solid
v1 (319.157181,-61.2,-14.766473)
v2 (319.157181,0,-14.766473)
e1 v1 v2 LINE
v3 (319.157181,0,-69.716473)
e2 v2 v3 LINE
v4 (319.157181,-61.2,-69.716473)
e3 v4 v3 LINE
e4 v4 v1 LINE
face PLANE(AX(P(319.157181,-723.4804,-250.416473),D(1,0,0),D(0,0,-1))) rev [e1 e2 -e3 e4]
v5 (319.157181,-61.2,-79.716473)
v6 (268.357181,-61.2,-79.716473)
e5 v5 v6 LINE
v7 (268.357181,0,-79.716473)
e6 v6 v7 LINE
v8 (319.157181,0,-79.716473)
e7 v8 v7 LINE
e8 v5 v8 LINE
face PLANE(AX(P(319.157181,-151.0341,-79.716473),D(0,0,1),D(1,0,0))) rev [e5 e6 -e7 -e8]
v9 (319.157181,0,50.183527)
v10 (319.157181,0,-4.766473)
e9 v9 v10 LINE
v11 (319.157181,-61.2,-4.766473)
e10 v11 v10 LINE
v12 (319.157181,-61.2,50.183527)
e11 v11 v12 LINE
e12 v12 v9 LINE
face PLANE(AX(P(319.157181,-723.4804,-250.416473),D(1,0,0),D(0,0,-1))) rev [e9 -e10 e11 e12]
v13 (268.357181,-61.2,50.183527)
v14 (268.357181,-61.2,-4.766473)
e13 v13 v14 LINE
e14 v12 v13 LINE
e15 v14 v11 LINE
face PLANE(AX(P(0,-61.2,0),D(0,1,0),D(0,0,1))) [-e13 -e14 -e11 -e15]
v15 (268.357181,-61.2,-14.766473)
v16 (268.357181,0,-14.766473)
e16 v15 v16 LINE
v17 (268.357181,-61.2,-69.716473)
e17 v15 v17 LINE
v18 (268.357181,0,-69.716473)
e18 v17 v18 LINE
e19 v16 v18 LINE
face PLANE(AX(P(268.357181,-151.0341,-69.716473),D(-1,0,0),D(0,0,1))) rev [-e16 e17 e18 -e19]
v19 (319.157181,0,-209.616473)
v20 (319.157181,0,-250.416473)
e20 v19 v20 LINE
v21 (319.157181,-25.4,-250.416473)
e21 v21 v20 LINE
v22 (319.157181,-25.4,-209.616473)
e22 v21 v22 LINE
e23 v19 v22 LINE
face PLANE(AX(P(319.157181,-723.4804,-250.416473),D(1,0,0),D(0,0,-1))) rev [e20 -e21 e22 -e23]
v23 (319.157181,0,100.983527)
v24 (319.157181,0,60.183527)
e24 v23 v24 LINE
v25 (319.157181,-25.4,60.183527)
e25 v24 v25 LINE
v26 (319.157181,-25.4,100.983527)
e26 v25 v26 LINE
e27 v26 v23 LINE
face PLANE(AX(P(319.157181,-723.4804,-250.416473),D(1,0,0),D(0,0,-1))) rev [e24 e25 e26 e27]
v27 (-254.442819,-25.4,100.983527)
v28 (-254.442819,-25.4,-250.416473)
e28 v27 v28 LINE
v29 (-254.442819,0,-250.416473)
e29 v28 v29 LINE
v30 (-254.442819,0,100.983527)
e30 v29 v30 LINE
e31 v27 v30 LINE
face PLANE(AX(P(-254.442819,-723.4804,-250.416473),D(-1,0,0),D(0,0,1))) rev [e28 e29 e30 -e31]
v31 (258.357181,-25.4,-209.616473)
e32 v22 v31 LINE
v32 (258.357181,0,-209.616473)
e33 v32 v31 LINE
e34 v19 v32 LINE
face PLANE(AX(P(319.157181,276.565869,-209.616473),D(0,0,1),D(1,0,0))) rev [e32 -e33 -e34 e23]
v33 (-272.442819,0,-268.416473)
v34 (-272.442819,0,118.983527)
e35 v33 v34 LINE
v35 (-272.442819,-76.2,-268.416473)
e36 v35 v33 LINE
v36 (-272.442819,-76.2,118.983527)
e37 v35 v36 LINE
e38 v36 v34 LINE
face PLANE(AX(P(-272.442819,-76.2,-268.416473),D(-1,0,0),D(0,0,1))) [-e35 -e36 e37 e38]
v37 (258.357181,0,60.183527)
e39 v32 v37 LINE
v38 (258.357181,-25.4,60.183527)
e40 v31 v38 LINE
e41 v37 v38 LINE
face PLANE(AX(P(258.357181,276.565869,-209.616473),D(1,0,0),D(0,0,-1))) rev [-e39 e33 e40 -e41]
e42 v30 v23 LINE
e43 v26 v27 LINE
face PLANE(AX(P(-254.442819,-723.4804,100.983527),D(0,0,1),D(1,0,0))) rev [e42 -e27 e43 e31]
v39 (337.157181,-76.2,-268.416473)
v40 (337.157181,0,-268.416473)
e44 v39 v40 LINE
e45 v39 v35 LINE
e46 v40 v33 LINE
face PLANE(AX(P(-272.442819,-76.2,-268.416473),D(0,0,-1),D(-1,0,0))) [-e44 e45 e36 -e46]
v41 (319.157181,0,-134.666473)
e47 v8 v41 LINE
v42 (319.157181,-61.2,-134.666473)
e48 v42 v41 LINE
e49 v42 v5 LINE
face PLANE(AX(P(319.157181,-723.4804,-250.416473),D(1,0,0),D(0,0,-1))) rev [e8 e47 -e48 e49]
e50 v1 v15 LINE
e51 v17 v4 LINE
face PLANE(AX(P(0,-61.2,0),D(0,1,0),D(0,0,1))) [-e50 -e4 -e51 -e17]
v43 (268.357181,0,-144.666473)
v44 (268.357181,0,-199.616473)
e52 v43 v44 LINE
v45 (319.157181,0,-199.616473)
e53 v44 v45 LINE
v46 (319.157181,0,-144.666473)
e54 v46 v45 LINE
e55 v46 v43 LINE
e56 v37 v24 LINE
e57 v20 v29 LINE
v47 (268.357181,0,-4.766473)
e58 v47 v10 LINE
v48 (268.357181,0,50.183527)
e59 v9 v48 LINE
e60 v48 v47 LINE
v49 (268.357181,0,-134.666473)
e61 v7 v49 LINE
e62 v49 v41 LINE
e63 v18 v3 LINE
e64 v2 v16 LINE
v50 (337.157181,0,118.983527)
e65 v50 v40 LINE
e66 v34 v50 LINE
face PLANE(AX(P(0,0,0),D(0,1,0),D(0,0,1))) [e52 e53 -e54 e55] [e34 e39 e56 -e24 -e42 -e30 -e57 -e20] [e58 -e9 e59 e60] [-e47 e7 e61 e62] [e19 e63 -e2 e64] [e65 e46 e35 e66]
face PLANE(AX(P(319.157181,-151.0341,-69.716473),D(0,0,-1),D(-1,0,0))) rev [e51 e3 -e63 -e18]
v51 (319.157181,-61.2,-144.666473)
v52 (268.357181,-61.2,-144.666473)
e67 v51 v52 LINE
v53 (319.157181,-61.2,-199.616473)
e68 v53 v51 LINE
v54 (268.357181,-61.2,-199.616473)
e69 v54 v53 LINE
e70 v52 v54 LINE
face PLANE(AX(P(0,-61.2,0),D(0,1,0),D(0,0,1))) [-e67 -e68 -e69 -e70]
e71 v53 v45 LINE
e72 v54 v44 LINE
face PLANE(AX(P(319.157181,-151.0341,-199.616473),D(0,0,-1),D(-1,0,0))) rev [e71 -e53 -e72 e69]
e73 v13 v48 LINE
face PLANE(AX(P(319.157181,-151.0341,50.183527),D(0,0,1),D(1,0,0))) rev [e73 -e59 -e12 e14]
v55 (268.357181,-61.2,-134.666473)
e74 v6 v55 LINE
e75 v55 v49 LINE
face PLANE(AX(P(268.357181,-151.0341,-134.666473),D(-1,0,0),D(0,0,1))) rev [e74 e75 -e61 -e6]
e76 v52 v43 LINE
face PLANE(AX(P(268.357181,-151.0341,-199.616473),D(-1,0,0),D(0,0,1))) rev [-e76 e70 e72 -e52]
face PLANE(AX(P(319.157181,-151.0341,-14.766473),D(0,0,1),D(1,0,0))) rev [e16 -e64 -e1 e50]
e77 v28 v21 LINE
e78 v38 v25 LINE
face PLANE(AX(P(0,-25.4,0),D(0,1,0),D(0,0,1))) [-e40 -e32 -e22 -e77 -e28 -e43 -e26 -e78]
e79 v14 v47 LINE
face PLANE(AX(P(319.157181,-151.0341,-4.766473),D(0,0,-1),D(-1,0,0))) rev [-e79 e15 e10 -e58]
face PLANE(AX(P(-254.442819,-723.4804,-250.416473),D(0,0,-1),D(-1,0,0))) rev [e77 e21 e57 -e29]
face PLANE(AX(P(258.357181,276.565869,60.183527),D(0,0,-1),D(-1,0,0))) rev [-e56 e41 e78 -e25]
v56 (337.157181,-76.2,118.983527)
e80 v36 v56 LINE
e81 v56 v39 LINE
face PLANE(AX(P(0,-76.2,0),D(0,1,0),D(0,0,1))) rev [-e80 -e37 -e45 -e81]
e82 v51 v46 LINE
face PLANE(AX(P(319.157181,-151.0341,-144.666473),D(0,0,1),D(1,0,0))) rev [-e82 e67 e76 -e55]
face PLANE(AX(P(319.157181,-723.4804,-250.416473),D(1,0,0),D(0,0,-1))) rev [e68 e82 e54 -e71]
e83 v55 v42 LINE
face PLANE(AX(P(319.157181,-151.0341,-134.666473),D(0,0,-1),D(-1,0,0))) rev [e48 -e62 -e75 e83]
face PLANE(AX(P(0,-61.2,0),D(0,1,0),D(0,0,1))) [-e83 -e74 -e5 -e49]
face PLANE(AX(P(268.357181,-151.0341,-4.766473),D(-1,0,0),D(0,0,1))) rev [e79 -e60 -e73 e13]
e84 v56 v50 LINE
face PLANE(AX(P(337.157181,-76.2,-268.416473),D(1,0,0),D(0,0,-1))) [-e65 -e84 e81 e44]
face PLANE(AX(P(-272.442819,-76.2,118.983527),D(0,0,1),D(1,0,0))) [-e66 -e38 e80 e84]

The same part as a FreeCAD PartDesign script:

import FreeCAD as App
import Part
import Sketcher
from FreeCAD import Vector


def add_polygon(sketch, points):
    """Adds a closed chain of lines whose ends are joined by coincident constraints."""
    first, n = sketch.GeometryCount, len(points)
    for a, b in zip(points, points[1:] + points[:1]):
        sketch.addGeometry(Part.LineSegment(App.Vector(*a, 0), App.Vector(*b, 0)), False)
    for i in range(n):
        sketch.addConstraint(Sketcher.Constraint("Coincident", first + i, 2, first + (i + 1) % n, 1))

doc = App.newDocument("Part")
body = doc.addObject("PartDesign::Body", "Body")

sketch1 = doc.addObject("Sketcher::SketchObject", "Sketch")
body.addObject(sketch1)
sketch1.AttachmentSupport = (doc.XZ_Plane, [""])
sketch1.MapMode = "FlatFace"
add_polygon(sketch1, [(-272, -268), (-272, 119), (337, 119), (337, -268)])
sketch1.addConstraint([
    Sketcher.Constraint("Vertical", 0),
    Sketcher.Constraint("Horizontal", 1),
    Sketcher.Constraint("Vertical", 2),
    Sketcher.Constraint("Horizontal", 3),
    Sketcher.Constraint("DistanceX", 1, 1, 1, 2, 609.6),
    Sketcher.Constraint("DistanceY", 0, 1, 0, 2, 387.4),
    Sketcher.Constraint("DistanceX", 0, 2, -1, 1, 272.442819),
    Sketcher.Constraint("DistanceY", -1, 1, 0, 2, 118.983527),
])
pad1 = doc.addObject("PartDesign::Pad", "Pad")
body.addObject(pad1)
pad1.Profile = sketch1
pad1.Length = 76.2

sketch2 = doc.addObject("Sketcher::SketchObject", "Sketch001")
body.addObject(sketch2)
sketch2.AttachmentSupport = (doc.XZ_Plane, [""])
sketch2.MapMode = "FlatFace"
add_polygon(sketch2, [(-254, -250), (-254, 101), (319, 101), (319, -250)])
sketch2.addConstraint([
    Sketcher.Constraint("Vertical", 0),
    Sketcher.Constraint("Horizontal", 1),
    Sketcher.Constraint("Vertical", 2),
    Sketcher.Constraint("Horizontal", 3),
    Sketcher.Constraint("DistanceX", 1, 1, 1, 2, 573.6),
    Sketcher.Constraint("DistanceY", 0, 1, 0, 2, 351.4),
    Sketcher.Constraint("DistanceX", 0, 2, -1, 1, 254.442819),
    Sketcher.Constraint("DistanceY", -1, 1, 0, 2, 100.983527),
])
pocket1 = doc.addObject("PartDesign::Pocket", "Pocket")
body.addObject(pocket1)
pocket1.Profile = sketch2
pocket1.Length = 25.4
pocket1.Reversed = True

sketch3 = doc.addObject("Sketcher::SketchObject", "Sketch002")
body.addObject(sketch3)
sketch3.AttachmentSupport = (doc.XZ_Plane, [""])
sketch3.MapMode = "FlatFace"
sketch3.AttachmentOffset = App.Placement(Vector(0, 0, 25.4), App.Rotation())
add_polygon(sketch3, [(268, -200), (268, -145), (319, -145), (319, -200)])
add_polygon(sketch3, [(268, -135), (268, -80), (319, -80), (319, -135)])
add_polygon(sketch3, [(268, -70), (268, -15), (319, -15), (319, -70)])
add_polygon(sketch3, [(268, -5), (268, 50), (319, 50), (319, -5)])
sketch3.addConstraint([
    Sketcher.Constraint("Vertical", 0),
    Sketcher.Constraint("Horizontal", 1),
    Sketcher.Constraint("Vertical", 2),
    Sketcher.Constraint("Horizontal", 3),
    Sketcher.Constraint("Vertical", 4),
    Sketcher.Constraint("Horizontal", 5),
    Sketcher.Constraint("Vertical", 6),
    Sketcher.Constraint("Horizontal", 7),
    Sketcher.Constraint("Vertical", 8),
    Sketcher.Constraint("Horizontal", 9),
    Sketcher.Constraint("Vertical", 10),
    Sketcher.Constraint("Horizontal", 11),
    Sketcher.Constraint("Vertical", 12),
    Sketcher.Constraint("Horizontal", 13),
    Sketcher.Constraint("Vertical", 14),
    Sketcher.Constraint("Horizontal", 15),
    Sketcher.Constraint("Vertical", 3, 2, 4, 2),
    Sketcher.Constraint("Vertical", 2, 2, 5, 2),
    Sketcher.Constraint("Vertical", 7, 2, 8, 2),
    Sketcher.Constraint("Vertical", 6, 2, 9, 2),
    Sketcher.Constraint("Vertical", 11, 2, 12, 2),
    Sketcher.Constraint("Vertical", 10, 2, 13, 2),
    Sketcher.Constraint("Equal", 2, 4),
    Sketcher.Constraint("Equal", 6, 8),
    Sketcher.Constraint("Equal", 10, 12),
    Sketcher.Constraint("DistanceX", 1, 1, 1, 2, 50.8),
    Sketcher.Constraint("DistanceY", 1, 2, 6, 2, 10.0),
    Sketcher.Constraint("DistanceY", 5, 2, 10, 2, 10.0),
    Sketcher.Constraint("DistanceY", 9, 2, 14, 2, 10.0),
    Sketcher.Constraint("DistanceY", 0, 1, 0, 2, 54.95),
    Sketcher.Constraint("DistanceX", -1, 1, 0, 2, 268.357181),
    Sketcher.Constraint("DistanceY", 0, 2, -1, 1, 144.666473),
])
pocket2 = doc.addObject("PartDesign::Pocket", "Pocket001")
body.addObject(pocket2)
pocket2.Profile = sketch3
pocket2.Length = 35.8
pocket2.Reversed = True

sketch4 = doc.addObject("Sketcher::SketchObject", "Sketch003")
body.addObject(sketch4)
sketch4.AttachmentSupport = (doc.XZ_Plane, [""])
sketch4.MapMode = "FlatFace"
sketch4.AttachmentOffset = App.Placement(Vector(0, 0, 25.4), App.Rotation())
add_polygon(sketch4, [(319, -210), (258, -210), (258, 60), (319, 60), (319, 50), (268, 50), (268, -5), (319, -5), (319, -15), (268, -15), (268, -70), (319, -70), (319, -80), (268, -80), (268, -135), (319, -135), (319, -145), (268, -145), (268, -200), (319, -200)])
sketch4.addConstraint([
    Sketcher.Constraint("Horizontal", 0),
    Sketcher.Constraint("Vertical", 1),
    Sketcher.Constraint("Horizontal", 2),
    Sketcher.Constraint("Vertical", 3),
    Sketcher.Constraint("Horizontal", 4),
    Sketcher.Constraint("Vertical", 5),
    Sketcher.Constraint("Horizontal", 6),
    Sketcher.Constraint("Vertical", 7),
    Sketcher.Constraint("Horizontal", 8),
    Sketcher.Constraint("Vertical", 9),
    Sketcher.Constraint("Horizontal", 10),
    Sketcher.Constraint("Vertical", 11),
    Sketcher.Constraint("Horizontal", 12),
    Sketcher.Constraint("Vertical", 13),
    Sketcher.Constraint("Horizontal", 14),
    Sketcher.Constraint("Vertical", 15),
    Sketcher.Constraint("Horizontal", 16),
    Sketcher.Constraint("Vertical", 17),
    Sketcher.Constraint("Horizontal", 18),
    Sketcher.Constraint("Vertical", 19),
    Sketcher.Constraint("Vertical", 3, 2, 6, 2),
    Sketcher.Constraint("Vertical", 5, 2, 8, 2),
    Sketcher.Constraint("Vertical", 7, 2, 10, 2),
    Sketcher.Constraint("Vertical", 9, 2, 12, 2),
    Sketcher.Constraint("Vertical", 11, 2, 14, 2),
    Sketcher.Constraint("Vertical", 13, 2, 16, 2),
    Sketcher.Constraint("Vertical", 15, 2, 18, 2),
    Sketcher.Constraint("Equal", 3, 7),
    Sketcher.Constraint("Equal", 5, 9),
    Sketcher.Constraint("Equal", 7, 11),
    Sketcher.Constraint("Equal", 9, 13),
    Sketcher.Constraint("Equal", 11, 15),
    Sketcher.Constraint("Equal", 13, 17),
    Sketcher.Constraint("Equal", 15, 19),
    Sketcher.Constraint("DistanceY", 3, 2, 3, 1, 10.0),
    Sketcher.Constraint("DistanceX", 0, 2, 0, 1, 60.8),
    Sketcher.Constraint("DistanceX", 4, 2, 4, 1, 50.8),
    Sketcher.Constraint("DistanceY", 1, 1, 1, 2, 269.8),
    Sketcher.Constraint("DistanceX", -1, 1, 0, 2, 258.357181),
    Sketcher.Constraint("DistanceY", 0, 2, -1, 1, 209.616473),
])
pad2 = doc.addObject("PartDesign::Pad", "Pad001")
body.addObject(pad2)
pad2.Profile = sketch4
pad2.Length = 25.4
pad2.Reversed = True

doc.recompute()
